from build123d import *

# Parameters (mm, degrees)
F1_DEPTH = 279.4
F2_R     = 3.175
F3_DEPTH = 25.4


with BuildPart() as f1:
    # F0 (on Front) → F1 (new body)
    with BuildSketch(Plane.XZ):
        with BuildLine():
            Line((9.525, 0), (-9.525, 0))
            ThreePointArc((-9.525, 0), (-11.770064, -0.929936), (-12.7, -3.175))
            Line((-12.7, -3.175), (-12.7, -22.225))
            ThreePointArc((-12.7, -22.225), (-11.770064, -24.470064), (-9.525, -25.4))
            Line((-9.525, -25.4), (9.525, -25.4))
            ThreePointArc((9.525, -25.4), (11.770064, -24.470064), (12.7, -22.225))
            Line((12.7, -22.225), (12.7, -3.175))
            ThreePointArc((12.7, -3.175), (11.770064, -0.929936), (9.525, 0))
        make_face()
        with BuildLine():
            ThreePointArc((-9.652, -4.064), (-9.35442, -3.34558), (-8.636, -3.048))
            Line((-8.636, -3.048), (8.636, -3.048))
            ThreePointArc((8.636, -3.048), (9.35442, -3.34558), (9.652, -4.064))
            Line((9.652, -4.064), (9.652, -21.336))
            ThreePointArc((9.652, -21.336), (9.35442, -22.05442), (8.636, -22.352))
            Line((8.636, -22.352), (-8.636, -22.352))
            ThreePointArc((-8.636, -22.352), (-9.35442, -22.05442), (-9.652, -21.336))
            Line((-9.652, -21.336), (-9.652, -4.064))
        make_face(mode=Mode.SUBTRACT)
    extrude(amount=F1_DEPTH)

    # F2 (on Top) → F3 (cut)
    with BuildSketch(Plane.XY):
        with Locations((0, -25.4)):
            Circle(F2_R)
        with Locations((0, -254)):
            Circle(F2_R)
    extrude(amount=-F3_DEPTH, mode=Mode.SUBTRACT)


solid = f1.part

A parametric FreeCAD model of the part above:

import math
import FreeCAD as App
import Part
import Sketcher
from FreeCAD import Vector
Q = App.Units.Quantity

doc = App.newDocument("Part")
body = doc.addObject("PartDesign::Body", "Body")

# Sketch on XZ plane
sketch1 = body.newObject("Sketcher::SketchObject", "Sketch")
sketch1.AttachmentSupport = (doc.getObject("XZ_Plane"), [""])
sketch1.MapMode = "FlatFace"
sketch1.addGeometry(Part.LineSegment(Vector(9.5, 0, 0), Vector(-9.5, 0, 0)), False)
sketch1.addGeometry(Part.ArcOfCircle(Part.Circle(Vector(-9.5, -3.2, 0), Vector(0, 0, 1), 3.2), math.radians(90), math.radians(180)), False)
sketch1.addGeometry(Part.LineSegment(Vector(-12.7, -3.2, 0), Vector(-12.7, -22.2, 0)), False)
sketch1.addGeometry(Part.ArcOfCircle(Part.Circle(Vector(-9.5, -22.2, 0), Vector(0, 0, 1), 3.2), math.radians(-180), math.radians(-90)), False)
sketch1.addGeometry(Part.LineSegment(Vector(-9.5, -25.4, 0), Vector(9.5, -25.4, 0)), False)
sketch1.addGeometry(Part.ArcOfCircle(Part.Circle(Vector(9.5, -22.2, 0), Vector(0, 0, 1), 3.2), math.radians(-90), math.radians(0)), False)
sketch1.addGeometry(Part.LineSegment(Vector(12.7, -22.2, 0), Vector(12.7, -3.2, 0)), False)
sketch1.addGeometry(Part.ArcOfCircle(Part.Circle(Vector(9.5, -3.2, 0), Vector(0, 0, 1), 3.2), math.radians(0), math.radians(90)), False)
sketch1.addGeometry(Part.LineSegment(Vector(-9.7, -21.3, 0), Vector(-9.7, -4.1, 0)), False)
sketch1.addGeometry(Part.ArcOfCircle(Part.Circle(Vector(-8.6, -4.1, 0), Vector(0, 0, 1), 1), math.radians(90), math.radians(180)), False)
sketch1.addGeometry(Part.LineSegment(Vector(-8.6, -3, 0), Vector(8.6, -3, 0)), False)
sketch1.addGeometry(Part.ArcOfCircle(Part.Circle(Vector(8.6, -4.1, 0), Vector(0, 0, 1), 1), math.radians(0), math.radians(90)), False)
sketch1.addGeometry(Part.LineSegment(Vector(9.7, -4.1, 0), Vector(9.7, -21.3, 0)), False)
sketch1.addGeometry(Part.ArcOfCircle(Part.Circle(Vector(8.6, -21.3, 0), Vector(0, 0, 1), 1), math.radians(-90), math.radians(0)), False)
sketch1.addGeometry(Part.LineSegment(Vector(8.6, -22.4, 0), Vector(-8.6, -22.4, 0)), False)
sketch1.addGeometry(Part.ArcOfCircle(Part.Circle(Vector(-8.6, -21.3, 0), Vector(0, 0, 1), 1), math.radians(-180), math.radians(-90)), False)
sketch1.addConstraint(Sketcher.Constraint("Tangent", 0, 2, 1, 1))
sketch1.addConstraint(Sketcher.Constraint("Tangent", 1, 2, 2, 1))
sketch1.addConstraint(Sketcher.Constraint("Tangent", 2, 2, 3, 1))
sketch1.addConstraint(Sketcher.Constraint("Tangent", 3, 2, 4, 1))
sketch1.addConstraint(Sketcher.Constraint("Tangent", 4, 2, 5, 1))
sketch1.addConstraint(Sketcher.Constraint("Tangent", 5, 2, 6, 1))
sketch1.addConstraint(Sketcher.Constraint("Tangent", 6, 2, 7, 1))
sketch1.addConstraint(Sketcher.Constraint("Tangent", 7, 2, 0, 1))
sketch1.addConstraint(Sketcher.Constraint("Tangent", 8, 2, 9, 2))
sketch1.addConstraint(Sketcher.Constraint("Tangent", 9, 1, 10, 1))
sketch1.addConstraint(Sketcher.Constraint("Tangent", 10, 2, 11, 2))
sketch1.addConstraint(Sketcher.Constraint("Tangent", 11, 1, 12, 1))
sketch1.addConstraint(Sketcher.Constraint("Tangent", 12, 2, 13, 2))
sketch1.addConstraint(Sketcher.Constraint("Tangent", 13, 1, 14, 1))
sketch1.addConstraint(Sketcher.Constraint("Tangent", 14, 2, 15, 2))
sketch1.addConstraint(Sketcher.Constraint("Tangent", 15, 1, 8, 1))
sketch1.addConstraint(Sketcher.Constraint("Horizontal", 0))
sketch1.addConstraint(Sketcher.Constraint("Vertical", 2))
sketch1.addConstraint(Sketcher.Constraint("Horizontal", 4))
sketch1.addConstraint(Sketcher.Constraint("Vertical", 6))
sketch1.addConstraint(Sketcher.Constraint("Vertical", 8))
sketch1.addConstraint(Sketcher.Constraint("Horizontal", 10))
sketch1.addConstraint(Sketcher.Constraint("Vertical", 12))
sketch1.addConstraint(Sketcher.Constraint("Horizontal", 14))
sketch1.addConstraint(Sketcher.Constraint("Equal", 1, 3))
sketch1.addConstraint(Sketcher.Constraint("Equal", 3, 5))
sketch1.addConstraint(Sketcher.Constraint("Equal", 5, 7))
sketch1.addConstraint(Sketcher.Constraint("Equal", 9, 11))
sketch1.addConstraint(Sketcher.Constraint("Equal", 11, 13))
sketch1.addConstraint(Sketcher.Constraint("Equal", 13, 15))
sketch1.addConstraint(Sketcher.Constraint("Symmetric", 0, 2, 7, 2, -1, 1))
sketch1.addConstraint(Sketcher.Constraint("Equal", 4, 2))
sketch1.addConstraint(Sketcher.Constraint("Equal", 14, 8))
sketch1.addConstraint(Sketcher.Constraint("Radius", 9, Q("0.0400001 in")))
sketch1.addConstraint(Sketcher.Constraint("DistanceY", 3, 2, -1, 1, Q("1 in")))
sketch1.addConstraint(Sketcher.Constraint("Radius", 1, Q("0.125 in")))
sketch1.addConstraint(Sketcher.Constraint("DistanceX", 10, 1, 10, 2, Q("0.68 in")))
sketch1.addConstraint(Sketcher.Constraint("DistanceX", 9, 3, -1, 1, Q("0.3399999 in")))
sketch1.addConstraint(Sketcher.Constraint("DistanceY", 9, 3, -1, 1, Q("0.1600001 in")))
pad1 = body.newObject("PartDesign::Pad", "Pad")
pad1.Profile = sketch1
pad1.Length = Q("11 in")

# Sketch on XY plane
sketch2 = body.newObject("Sketcher::SketchObject", "Sketch001")
sketch2.AttachmentSupport = (doc.getObject("XY_Plane"), [""])
sketch2.MapMode = "FlatFace"
sketch2.addGeometry(Part.Circle(Vector(0, -25.4, 0), Vector(0, 0, 1), 3.2), False)
sketch2.addGeometry(Part.Circle(Vector(0, -254, 0), Vector(0, 0, 1), 3.2), False)
sketch2.addConstraint(Sketcher.Constraint("Equal", 0, 1))
sketch2.addConstraint(Sketcher.Constraint("PointOnObject", 0, 3, -2))
sketch2.addConstraint(Sketcher.Constraint("PointOnObject", 1, 3, -2))
sketch2.addConstraint(Sketcher.Constraint("Diameter", 0, Q("0.25 in")))
sketch2.addConstraint(Sketcher.Constraint("DistanceY", 0, 3, -1, 1, Q("1 in")))
sketch2.addConstraint(Sketcher.Constraint("DistanceY", 1, 3, -1, 1, Q("10 in")))
pocket1 = body.newObject("PartDesign::Pocket", "Pocket")
pocket1.Profile = sketch2
pocket1.Length = Q("1 in")

doc.recompute()
